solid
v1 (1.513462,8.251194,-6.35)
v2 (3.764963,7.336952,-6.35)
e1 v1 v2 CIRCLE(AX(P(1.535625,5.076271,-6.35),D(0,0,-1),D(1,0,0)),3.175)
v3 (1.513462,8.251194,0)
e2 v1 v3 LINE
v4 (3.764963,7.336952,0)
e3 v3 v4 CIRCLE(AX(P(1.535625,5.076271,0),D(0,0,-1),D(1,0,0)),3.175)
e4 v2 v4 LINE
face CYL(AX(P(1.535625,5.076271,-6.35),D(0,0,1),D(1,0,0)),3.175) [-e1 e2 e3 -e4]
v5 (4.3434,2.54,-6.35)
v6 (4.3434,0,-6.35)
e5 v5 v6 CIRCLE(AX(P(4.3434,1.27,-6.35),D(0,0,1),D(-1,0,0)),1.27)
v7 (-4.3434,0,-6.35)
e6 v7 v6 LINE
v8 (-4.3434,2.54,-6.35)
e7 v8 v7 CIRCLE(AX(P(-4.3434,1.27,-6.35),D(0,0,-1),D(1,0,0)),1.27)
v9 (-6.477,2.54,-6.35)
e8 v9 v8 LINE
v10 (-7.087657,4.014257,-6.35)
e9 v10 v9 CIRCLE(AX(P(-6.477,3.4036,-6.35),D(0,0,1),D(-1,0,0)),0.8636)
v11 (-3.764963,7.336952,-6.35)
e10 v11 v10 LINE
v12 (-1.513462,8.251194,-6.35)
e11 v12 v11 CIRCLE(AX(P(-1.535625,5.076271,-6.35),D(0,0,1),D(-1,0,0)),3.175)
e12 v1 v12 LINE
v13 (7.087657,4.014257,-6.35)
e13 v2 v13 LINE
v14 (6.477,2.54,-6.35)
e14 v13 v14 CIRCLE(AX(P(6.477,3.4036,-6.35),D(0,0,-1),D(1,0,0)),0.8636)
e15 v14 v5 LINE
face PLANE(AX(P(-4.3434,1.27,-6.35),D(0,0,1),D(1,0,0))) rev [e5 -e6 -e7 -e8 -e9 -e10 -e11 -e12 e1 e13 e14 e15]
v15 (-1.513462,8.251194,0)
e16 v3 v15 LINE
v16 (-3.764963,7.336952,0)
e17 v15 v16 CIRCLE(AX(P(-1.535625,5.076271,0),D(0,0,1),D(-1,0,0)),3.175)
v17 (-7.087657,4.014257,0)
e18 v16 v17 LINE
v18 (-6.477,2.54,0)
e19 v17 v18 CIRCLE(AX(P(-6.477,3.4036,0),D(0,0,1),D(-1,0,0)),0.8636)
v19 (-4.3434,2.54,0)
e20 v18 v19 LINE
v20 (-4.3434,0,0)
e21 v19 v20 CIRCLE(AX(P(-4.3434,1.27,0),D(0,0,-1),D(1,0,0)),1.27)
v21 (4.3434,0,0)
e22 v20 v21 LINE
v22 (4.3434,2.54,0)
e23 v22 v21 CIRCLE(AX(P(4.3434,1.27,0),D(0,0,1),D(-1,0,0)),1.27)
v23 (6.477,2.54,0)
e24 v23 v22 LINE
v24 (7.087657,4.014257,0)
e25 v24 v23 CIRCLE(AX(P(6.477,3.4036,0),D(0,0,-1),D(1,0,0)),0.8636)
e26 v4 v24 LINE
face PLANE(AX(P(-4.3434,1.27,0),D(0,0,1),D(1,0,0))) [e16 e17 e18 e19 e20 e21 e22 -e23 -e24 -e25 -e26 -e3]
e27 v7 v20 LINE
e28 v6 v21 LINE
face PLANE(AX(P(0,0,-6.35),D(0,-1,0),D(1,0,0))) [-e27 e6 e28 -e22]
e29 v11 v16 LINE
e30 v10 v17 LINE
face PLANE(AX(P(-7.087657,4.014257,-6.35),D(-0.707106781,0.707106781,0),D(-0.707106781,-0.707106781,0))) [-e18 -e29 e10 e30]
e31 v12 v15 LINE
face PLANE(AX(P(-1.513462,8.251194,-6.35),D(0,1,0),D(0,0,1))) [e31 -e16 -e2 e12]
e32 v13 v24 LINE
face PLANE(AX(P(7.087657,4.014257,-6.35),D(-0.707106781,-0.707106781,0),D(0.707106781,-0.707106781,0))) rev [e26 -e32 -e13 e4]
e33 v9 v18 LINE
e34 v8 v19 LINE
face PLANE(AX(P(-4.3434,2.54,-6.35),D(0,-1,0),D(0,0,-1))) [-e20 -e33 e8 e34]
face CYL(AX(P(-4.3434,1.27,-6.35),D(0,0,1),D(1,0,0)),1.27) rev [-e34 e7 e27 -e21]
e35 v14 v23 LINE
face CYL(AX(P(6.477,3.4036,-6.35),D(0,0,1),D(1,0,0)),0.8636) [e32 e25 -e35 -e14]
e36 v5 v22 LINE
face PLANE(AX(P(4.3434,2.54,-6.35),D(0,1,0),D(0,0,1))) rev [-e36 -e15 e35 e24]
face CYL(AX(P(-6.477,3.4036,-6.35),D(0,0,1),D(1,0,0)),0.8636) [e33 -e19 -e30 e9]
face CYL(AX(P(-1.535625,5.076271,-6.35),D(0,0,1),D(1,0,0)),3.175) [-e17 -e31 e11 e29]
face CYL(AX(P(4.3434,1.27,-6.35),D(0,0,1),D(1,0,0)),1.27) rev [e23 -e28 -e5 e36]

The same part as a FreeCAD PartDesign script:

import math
import FreeCAD as App
import Part
import Sketcher

V = App.Vector
Q = App.Units.Quantity

doc = App.newDocument("Part")
body = doc.addObject("PartDesign::Body", "Body")

sketch1 = body.newObject("Sketcher::SketchObject", "Sketch")
sketch1.AttachmentSupport = (doc.getObject("XY_Plane"), [""])
sketch1.MapMode = "FlatFace"
sketch1.addGeometry([
    Part.LineSegment(V(-4.3, 0, 0), V(0, 0, 0)),
    Part.LineSegment(V(0, 0, 0), V(0, 8.3, 0)),
    Part.LineSegment(V(0, 8.3, 0), V(-1.5, 8.3, 0)),
    Part.ArcOfCircle(Part.Circle(V(-1.5, 5.1, 0), V(0, 0, 1), 3.2), math.radians(90), math.radians(135)),
    Part.LineSegment(V(-3.8, 7.3, 0), V(-7.1, 4, 0)),
    Part.ArcOfCircle(Part.Circle(V(-6.5, 3.4, 0), V(0, 0, 1), 0.9), math.radians(135), math.radians(270)),
    Part.LineSegment(V(-6.5, 2.5, 0), V(-4.3, 2.5, 0)),
    Part.ArcOfCircle(Part.Circle(V(-4.3, 1.3, 0), V(0, 0, 1), 1.3), math.radians(-90), math.radians(90)),
], False)
sketch1.addConstraint([
    Sketcher.Constraint("Coincident", 0, 2, 1, 1),
    Sketcher.Constraint("Coincident", 1, 2, 2, 1),
    Sketcher.Constraint("Coincident", 2, 2, 3, 1),
    Sketcher.Constraint("Coincident", 3, 2, 4, 1),
    Sketcher.Constraint("Tangent", 4, 2, 5, 1),
    Sketcher.Constraint("Tangent", 5, 2, 6, 1),
    Sketcher.Constraint("Tangent", 6, 2, 7, 2),
    Sketcher.Constraint("Tangent", 7, 1, 0, 1),
    Sketcher.Constraint("Horizontal", 0),
    Sketcher.Constraint("Vertical", 1),
    Sketcher.Constraint("Horizontal", 2),
    Sketcher.Constraint("Horizontal", 6),
    Sketcher.Constraint("Coincident", 0, 2, -1, 1),
    Sketcher.Constraint("Radius", 7, Q("0.05 in")),
    Sketcher.Constraint("Angle", 4, Q("-135 deg")),
    Sketcher.Constraint("Radius", 3, Q("0.125 in")),
    Sketcher.Constraint("Radius", 5, Q("0.034 in")),
    Sketcher.Constraint("DistanceX", 0, 1, 0, 2, Q("0.171 in")),
    Sketcher.Constraint("DistanceX", 6, 1, 6, 2, Q("0.084 in")),
    Sketcher.Constraint("Distance", 4, Q("0.185 in")),
    Sketcher.Constraint("DistanceX", 2, 2, 2, 1, Q("1.513462 mm")),
    Sketcher.Constraint("DistanceY", 1, 1, 1, 2, Q("8.251194 mm")),
])
pad1 = body.newObject("PartDesign::Pad", "Pad")
pad1.Profile = sketch1
pad1.Length = Q("0.25 in")
pad1.Reversed = True
doc.recompute()

mirrored = body.newObject("PartDesign::Mirrored", "Mirrored")
mirrored.Originals = [pad1]
mirrored.MirrorPlane = (doc.getObject("YZ_Plane"), [""])
body.Tip = mirrored

doc.recompute()
